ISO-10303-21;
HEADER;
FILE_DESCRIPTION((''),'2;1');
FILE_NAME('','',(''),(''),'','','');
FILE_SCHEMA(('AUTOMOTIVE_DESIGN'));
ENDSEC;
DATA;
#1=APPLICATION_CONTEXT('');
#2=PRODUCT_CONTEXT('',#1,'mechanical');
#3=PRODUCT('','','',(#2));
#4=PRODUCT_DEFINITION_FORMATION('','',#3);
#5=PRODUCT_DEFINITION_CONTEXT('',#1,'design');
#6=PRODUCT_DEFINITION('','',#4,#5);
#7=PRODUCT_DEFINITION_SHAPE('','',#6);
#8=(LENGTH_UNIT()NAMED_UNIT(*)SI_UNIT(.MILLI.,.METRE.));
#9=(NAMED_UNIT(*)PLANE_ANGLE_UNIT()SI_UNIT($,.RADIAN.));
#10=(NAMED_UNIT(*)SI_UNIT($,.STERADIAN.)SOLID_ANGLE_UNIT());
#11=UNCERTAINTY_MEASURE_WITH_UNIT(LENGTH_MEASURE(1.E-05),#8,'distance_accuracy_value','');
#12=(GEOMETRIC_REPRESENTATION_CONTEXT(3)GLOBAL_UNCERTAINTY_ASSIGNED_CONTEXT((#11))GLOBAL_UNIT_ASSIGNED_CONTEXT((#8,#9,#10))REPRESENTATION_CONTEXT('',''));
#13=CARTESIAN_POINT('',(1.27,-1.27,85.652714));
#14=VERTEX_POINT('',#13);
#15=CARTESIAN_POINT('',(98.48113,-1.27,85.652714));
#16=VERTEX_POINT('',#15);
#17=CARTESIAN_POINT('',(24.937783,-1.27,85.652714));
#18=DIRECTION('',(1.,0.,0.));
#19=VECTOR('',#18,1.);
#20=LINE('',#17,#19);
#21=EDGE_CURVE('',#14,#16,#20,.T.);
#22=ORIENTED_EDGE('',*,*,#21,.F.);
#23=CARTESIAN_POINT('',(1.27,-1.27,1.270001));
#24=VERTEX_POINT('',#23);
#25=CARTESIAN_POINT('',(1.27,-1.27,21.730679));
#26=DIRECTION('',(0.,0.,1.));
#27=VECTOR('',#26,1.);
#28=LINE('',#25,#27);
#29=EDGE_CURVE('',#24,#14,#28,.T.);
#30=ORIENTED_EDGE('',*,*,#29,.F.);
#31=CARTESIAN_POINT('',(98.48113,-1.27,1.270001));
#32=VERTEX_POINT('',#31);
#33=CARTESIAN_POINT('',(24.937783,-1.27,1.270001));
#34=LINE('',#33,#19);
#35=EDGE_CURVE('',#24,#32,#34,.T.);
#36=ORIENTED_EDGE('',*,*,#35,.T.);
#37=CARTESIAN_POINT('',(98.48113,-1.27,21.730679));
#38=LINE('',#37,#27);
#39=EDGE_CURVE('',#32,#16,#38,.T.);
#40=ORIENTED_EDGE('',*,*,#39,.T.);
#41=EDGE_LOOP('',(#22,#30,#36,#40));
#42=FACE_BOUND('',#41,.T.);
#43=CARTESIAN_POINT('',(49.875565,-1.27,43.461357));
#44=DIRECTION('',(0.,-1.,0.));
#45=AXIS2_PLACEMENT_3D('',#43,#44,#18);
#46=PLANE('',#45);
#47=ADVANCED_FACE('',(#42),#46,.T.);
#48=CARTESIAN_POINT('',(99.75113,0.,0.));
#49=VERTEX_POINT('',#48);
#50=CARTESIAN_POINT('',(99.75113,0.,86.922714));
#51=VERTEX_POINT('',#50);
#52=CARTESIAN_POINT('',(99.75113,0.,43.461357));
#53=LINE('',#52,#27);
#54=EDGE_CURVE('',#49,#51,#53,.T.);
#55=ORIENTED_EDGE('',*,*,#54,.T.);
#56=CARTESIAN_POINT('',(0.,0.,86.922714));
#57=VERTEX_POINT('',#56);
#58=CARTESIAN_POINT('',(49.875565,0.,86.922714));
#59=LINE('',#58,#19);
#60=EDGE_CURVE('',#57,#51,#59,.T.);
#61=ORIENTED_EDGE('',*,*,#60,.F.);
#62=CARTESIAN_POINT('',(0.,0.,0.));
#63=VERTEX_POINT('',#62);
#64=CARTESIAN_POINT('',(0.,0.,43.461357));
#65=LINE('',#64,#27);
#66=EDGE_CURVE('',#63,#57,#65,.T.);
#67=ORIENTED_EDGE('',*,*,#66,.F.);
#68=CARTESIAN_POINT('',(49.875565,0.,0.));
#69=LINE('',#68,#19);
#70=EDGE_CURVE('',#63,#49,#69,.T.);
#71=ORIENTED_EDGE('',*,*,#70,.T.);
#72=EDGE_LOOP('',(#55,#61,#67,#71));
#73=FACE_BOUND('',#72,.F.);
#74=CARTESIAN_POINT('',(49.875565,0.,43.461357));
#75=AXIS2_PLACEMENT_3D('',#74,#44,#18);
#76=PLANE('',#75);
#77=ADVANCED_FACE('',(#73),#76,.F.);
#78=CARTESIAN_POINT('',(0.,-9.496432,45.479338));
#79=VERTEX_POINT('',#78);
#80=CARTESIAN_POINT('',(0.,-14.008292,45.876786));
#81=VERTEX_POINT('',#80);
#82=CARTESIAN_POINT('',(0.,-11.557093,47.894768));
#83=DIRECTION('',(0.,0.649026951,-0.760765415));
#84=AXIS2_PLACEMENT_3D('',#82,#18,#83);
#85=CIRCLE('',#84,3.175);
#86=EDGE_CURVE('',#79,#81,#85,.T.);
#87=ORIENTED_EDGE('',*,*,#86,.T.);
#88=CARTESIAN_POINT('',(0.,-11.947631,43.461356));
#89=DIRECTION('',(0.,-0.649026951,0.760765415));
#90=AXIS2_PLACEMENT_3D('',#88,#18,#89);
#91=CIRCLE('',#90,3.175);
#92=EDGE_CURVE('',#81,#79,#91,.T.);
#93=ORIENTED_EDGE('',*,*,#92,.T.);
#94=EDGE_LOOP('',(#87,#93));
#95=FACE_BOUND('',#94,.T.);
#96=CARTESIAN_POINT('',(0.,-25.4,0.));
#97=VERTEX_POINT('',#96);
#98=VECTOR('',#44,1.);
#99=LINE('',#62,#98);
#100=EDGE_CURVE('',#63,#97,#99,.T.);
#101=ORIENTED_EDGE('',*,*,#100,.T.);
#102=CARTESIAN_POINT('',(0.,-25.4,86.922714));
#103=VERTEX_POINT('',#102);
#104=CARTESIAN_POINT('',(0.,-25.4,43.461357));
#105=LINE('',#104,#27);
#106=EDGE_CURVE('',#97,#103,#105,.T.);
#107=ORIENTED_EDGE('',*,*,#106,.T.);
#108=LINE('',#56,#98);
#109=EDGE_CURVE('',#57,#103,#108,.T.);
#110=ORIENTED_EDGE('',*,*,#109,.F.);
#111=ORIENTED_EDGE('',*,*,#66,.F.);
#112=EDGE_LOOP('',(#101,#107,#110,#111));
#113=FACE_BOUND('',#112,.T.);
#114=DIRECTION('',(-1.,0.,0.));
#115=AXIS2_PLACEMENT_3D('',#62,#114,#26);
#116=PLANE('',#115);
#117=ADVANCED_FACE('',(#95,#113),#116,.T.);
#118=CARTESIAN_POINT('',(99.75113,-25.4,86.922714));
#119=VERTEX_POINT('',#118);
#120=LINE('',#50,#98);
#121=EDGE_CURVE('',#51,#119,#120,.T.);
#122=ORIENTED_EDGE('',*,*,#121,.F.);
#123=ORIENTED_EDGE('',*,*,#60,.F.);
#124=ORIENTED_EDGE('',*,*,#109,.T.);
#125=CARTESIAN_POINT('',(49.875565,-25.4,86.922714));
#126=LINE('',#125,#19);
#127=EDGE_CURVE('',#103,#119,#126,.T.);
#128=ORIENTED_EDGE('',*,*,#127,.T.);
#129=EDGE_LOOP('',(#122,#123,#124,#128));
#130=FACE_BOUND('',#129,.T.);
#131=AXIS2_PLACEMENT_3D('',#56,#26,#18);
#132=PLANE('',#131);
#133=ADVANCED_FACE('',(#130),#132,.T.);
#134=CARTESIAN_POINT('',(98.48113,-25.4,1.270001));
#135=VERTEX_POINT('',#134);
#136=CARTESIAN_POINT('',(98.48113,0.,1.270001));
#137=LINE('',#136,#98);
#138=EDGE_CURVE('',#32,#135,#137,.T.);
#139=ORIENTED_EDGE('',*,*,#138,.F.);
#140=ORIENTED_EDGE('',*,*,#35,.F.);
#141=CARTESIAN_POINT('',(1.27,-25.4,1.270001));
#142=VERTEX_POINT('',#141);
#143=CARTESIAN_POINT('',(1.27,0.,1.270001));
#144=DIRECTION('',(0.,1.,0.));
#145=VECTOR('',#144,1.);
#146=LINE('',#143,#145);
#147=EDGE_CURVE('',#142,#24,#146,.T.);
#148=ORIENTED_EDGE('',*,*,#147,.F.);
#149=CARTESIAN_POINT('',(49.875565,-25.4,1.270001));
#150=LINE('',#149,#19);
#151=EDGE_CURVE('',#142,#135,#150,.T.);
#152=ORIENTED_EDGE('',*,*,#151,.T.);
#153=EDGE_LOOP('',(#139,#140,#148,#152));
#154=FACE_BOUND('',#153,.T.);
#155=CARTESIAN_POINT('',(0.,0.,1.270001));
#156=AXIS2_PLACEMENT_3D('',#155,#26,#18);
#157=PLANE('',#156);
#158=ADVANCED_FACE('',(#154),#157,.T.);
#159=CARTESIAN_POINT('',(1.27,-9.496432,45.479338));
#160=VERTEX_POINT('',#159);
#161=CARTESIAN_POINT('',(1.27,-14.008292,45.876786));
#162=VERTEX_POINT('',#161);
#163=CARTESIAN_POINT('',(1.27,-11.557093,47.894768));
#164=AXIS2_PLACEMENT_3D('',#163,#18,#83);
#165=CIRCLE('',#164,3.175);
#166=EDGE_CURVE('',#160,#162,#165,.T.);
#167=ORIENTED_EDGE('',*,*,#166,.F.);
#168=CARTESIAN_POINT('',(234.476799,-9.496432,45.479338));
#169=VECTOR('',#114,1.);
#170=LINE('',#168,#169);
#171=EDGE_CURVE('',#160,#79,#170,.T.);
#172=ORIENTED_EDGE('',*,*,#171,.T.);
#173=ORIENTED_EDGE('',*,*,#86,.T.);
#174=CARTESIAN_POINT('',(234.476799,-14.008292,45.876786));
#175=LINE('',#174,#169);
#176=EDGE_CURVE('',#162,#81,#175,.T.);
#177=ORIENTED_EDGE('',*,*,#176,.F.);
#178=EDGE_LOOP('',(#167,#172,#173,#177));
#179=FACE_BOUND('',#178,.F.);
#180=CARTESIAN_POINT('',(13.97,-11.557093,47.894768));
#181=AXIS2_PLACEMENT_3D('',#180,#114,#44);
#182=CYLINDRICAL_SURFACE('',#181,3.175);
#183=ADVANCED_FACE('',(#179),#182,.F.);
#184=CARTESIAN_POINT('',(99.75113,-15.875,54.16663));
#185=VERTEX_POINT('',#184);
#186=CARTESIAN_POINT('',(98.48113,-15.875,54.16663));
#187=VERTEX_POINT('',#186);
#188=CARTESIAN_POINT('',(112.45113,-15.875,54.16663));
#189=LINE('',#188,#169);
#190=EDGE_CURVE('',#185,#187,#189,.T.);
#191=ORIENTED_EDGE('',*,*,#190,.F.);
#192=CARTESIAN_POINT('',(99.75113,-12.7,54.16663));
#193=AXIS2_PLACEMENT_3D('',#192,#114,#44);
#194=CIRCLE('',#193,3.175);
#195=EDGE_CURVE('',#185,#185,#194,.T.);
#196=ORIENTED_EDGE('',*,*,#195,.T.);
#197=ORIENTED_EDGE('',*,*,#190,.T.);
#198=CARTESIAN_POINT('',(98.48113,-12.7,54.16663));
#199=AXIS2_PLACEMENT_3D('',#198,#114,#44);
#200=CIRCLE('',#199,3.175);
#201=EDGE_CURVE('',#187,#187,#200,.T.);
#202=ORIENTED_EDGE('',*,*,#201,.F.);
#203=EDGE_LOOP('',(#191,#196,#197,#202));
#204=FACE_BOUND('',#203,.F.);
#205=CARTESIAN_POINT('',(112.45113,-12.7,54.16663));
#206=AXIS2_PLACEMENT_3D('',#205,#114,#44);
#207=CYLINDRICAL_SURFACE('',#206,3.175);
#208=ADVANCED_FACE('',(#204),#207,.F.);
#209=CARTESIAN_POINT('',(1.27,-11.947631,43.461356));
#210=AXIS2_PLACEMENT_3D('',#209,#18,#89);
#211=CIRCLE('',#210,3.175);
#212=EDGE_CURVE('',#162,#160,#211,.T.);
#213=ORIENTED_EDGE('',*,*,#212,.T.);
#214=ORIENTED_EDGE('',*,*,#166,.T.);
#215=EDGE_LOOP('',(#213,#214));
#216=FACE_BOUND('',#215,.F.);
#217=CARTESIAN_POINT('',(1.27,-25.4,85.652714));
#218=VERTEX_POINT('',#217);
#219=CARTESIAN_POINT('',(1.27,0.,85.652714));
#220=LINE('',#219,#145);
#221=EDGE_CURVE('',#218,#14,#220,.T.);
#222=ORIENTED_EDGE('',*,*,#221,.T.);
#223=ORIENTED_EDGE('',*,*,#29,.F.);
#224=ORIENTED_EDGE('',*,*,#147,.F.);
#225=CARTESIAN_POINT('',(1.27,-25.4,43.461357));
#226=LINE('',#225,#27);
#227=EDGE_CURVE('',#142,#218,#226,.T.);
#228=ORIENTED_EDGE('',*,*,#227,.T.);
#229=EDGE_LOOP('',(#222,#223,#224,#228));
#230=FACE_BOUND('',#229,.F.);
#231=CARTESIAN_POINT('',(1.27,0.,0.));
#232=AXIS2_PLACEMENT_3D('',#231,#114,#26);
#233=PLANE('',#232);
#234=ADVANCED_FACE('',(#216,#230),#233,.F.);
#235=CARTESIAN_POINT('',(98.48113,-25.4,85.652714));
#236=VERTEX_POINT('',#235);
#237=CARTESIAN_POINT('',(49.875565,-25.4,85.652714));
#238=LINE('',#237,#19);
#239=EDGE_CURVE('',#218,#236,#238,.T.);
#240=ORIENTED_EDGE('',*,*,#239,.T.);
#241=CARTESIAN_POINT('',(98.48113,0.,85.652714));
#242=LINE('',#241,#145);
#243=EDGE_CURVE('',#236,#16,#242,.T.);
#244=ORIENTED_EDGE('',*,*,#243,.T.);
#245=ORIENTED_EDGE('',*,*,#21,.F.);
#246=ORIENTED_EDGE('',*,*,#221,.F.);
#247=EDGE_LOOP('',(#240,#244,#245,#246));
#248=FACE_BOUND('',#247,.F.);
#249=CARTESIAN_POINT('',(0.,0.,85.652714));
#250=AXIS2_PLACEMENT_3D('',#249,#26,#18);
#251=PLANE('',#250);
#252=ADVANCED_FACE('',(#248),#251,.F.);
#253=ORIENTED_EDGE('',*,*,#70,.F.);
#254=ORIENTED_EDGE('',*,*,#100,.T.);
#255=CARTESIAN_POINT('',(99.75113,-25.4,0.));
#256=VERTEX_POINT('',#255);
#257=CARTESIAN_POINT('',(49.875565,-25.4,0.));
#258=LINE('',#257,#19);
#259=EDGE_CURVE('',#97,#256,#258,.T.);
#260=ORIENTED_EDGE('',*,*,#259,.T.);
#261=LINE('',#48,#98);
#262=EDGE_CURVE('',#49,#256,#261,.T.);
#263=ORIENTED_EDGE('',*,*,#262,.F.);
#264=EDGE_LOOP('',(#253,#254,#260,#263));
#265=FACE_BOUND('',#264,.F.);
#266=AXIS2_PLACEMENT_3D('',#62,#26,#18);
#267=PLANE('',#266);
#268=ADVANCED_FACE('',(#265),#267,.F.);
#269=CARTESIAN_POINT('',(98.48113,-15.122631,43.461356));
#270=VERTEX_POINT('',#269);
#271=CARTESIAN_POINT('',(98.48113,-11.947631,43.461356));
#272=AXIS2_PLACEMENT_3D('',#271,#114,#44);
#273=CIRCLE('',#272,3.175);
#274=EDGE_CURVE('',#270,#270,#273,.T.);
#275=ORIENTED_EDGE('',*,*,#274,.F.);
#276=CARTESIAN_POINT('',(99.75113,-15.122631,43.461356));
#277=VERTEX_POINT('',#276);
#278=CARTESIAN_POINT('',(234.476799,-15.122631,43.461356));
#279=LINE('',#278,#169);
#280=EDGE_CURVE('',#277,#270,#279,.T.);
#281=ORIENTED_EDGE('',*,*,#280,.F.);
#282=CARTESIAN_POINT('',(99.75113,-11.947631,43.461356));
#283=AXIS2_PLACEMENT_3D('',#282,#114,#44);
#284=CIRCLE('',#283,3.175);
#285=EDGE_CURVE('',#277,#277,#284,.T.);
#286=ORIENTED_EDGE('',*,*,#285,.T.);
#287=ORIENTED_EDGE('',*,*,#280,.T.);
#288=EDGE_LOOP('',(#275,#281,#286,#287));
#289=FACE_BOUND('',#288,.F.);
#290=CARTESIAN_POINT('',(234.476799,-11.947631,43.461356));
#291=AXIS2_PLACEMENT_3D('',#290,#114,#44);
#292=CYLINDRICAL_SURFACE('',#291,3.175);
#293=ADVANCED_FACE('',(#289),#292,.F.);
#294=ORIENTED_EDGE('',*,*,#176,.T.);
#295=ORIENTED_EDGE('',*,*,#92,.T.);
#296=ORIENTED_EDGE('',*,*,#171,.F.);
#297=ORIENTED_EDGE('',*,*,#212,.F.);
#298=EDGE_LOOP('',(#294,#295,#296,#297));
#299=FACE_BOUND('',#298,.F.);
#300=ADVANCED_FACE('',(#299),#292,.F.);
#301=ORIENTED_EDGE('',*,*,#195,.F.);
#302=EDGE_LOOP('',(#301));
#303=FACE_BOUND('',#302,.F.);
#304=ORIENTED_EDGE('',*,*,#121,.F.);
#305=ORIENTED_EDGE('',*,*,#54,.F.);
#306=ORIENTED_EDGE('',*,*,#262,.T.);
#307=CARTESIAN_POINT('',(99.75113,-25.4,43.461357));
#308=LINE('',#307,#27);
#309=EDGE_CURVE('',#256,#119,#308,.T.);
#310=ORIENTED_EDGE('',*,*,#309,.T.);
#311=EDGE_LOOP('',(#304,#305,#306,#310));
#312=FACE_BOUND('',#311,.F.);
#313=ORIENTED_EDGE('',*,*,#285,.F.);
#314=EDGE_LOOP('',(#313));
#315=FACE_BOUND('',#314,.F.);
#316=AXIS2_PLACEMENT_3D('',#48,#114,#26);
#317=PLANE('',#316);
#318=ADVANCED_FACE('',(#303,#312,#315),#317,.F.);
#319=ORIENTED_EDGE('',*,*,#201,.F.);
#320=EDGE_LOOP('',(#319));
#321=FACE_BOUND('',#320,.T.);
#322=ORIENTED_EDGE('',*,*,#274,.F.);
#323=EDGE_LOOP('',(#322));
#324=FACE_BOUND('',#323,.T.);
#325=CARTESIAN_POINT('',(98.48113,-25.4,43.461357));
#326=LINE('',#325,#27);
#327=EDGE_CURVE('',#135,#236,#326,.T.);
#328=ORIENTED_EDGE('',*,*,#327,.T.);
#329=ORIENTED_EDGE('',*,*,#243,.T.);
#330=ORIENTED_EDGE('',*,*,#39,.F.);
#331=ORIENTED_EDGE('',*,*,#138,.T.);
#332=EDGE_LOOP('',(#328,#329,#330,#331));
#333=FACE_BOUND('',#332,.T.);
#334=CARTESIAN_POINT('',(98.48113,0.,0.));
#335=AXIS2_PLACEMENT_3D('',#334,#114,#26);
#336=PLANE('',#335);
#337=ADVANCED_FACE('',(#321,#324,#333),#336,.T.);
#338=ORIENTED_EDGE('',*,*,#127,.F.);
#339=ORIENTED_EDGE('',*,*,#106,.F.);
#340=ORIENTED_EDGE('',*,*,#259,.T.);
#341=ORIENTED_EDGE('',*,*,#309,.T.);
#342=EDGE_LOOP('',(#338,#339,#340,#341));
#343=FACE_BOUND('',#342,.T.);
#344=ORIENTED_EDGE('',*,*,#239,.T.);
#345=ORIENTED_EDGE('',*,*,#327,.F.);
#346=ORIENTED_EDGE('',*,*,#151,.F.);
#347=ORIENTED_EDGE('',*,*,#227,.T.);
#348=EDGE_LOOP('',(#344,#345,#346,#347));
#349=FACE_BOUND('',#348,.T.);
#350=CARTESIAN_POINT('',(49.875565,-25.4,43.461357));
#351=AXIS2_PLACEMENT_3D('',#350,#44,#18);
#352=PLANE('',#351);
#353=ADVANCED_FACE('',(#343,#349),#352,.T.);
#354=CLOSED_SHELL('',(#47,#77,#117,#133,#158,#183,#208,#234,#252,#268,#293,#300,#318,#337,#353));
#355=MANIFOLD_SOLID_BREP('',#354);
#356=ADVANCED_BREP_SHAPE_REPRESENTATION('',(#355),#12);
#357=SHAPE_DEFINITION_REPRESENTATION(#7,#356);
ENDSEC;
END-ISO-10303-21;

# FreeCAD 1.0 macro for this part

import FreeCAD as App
import Part
import Sketcher
from FreeCAD import Vector
Q = App.Units.Quantity


def faces_at(feature, points):
    """Names of the faces that lie closest to the given points."""
    faces = feature.Shape.Faces
    near = lambda p: min(range(len(faces)), key=lambda i: faces[i].distToShape(Part.Vertex(*p))[0])
    return sorted({f"Face{near(p) + 1}" for p in points})


def add_polygon(sketch, points):
    """Adds a closed chain of lines whose ends are joined by coincident constraints."""
    first, n = sketch.GeometryCount, len(points)
    for a, b in zip(points, points[1:] + points[:1]):
        sketch.addGeometry(Part.LineSegment(App.Vector(*a, 0), App.Vector(*b, 0)), False)
    for i in range(n):
        sketch.addConstraint(Sketcher.Constraint("Coincident", first + i, 2, first + (i + 1) % n, 1))

doc = App.newDocument("Part")
body = doc.addObject("PartDesign::Body", "Body")

sketch1 = body.newObject("Sketcher::SketchObject", "Sketch")
sketch1.AttachmentSupport = (doc.getObject("XZ_Plane"), [""])
sketch1.MapMode = "FlatFace"
add_polygon(sketch1, [(0, 87), (0, 0), (100, 0), (100, 87)])
sketch1.addConstraint([
    Sketcher.Constraint("Vertical", 0),
    Sketcher.Constraint("Horizontal", 1),
    Sketcher.Constraint("Vertical", 2),
    Sketcher.Constraint("Horizontal", 3),
    Sketcher.Constraint("Coincident", 0, 2, -1, 1),
    Sketcher.Constraint("DistanceX", 1, 1, 1, 2, Q("99.75113 mm")),
    Sketcher.Constraint("DistanceY", 0, 2, 0, 1, Q("86.922713 mm")),
])
pad1 = body.newObject("PartDesign::Pad", "Pad")
pad1.Profile = sketch1
pad1.Length = Q("1 in")
doc.recompute()

thickness = body.newObject("PartDesign::Thickness", "Thickness")
thickness.Base = (pad1, faces_at(pad1, [(49.876, -25.4, 43.461)]))
thickness.Value = Q("0.05 in")
thickness.Reversed = True
thickness.Join = "Arc"

sketch2 = body.newObject("Sketcher::SketchObject", "Sketch001")
sketch2.AttachmentSupport = (doc.getObject("YZ_Plane"), [""])
sketch2.MapMode = "FlatFace"
sketch2.AttachmentOffset = App.Placement(Vector(0, 0, 99.75113), App.Rotation())
sketch2.addGeometry(Part.Circle(Vector(-11.9, 43.5, 0), Vector(0, 0, 1), 3.2), False)
sketch2.addConstraint([
    Sketcher.Constraint("Diameter", 0, Q("0.25 in")),
    Sketcher.Constraint("DistanceX", 0, 3, -1, 1, Q("11.947631 mm")),
    Sketcher.Constraint("DistanceY", -1, 1, 0, 3, Q("43.461356 mm")),
])
doc.recompute()
hole = body.newObject("PartDesign::Hole", "Hole")
hole.Profile = sketch2
hole.ThreadType = "None"
hole.Diameter = Q("0.25 in")
hole.DepthType = "ThroughAll"

sketch3 = body.newObject("Sketcher::SketchObject", "Sketch002")
sketch3.AttachmentSupport = (doc.getObject("YZ_Plane"), [""])
sketch3.MapMode = "FlatFace"
sketch3.AttachmentOffset = App.Placement(Vector(0, 0, 0.05 * 25.4), App.Rotation())
sketch3.addGeometry(Part.Circle(Vector(-11.6, 47.9, 0), Vector(0, 0, 1), 3.2), False)
sketch3.addConstraint([
    Sketcher.Constraint("Diameter", 0, Q("0.25 in")),
    Sketcher.Constraint("DistanceX", 0, 3, -1, 1, Q("11.557093 mm")),
    Sketcher.Constraint("DistanceY", -1, 1, 0, 3, Q("47.894768 mm")),
])
doc.recompute()
hole2 = body.newObject("PartDesign::Hole", "Hole001")
hole2.Profile = sketch3
hole2.ThreadType = "None"
hole2.Diameter = Q("0.25 in")
hole2.DepthType = "Dimension"
hole2.Depth = Q("0.5 in")
hole2.DrillPoint = "Flat"

sketch4 = body.newObject("Sketcher::SketchObject", "Sketch003")
sketch4.AttachmentSupport = (doc.getObject("YZ_Plane"), [""])
sketch4.MapMode = "FlatFace"
sketch4.AttachmentOffset = App.Placement(Vector(0, 0, 99.75113), App.Rotation())
sketch4.addGeometry(Part.Circle(Vector(-12.7, 54.2, 0), Vector(0, 0, 1), 3.2), False)
sketch4.addConstraint([
    Sketcher.Constraint("Diameter", 0, Q("0.25 in")),
    Sketcher.Constraint("DistanceX", 0, 3, -1, 1, Q("0.5 in")),
    Sketcher.Constraint("DistanceY", -1, 1, 0, 3, Q("54.16663 mm")),
])
doc.recompute()
hole3 = body.newObject("PartDesign::Hole", "Hole002")
hole3.Profile = sketch4
hole3.ThreadType = "None"
hole3.Diameter = Q("0.25 in")
hole3.DepthType = "Dimension"
hole3.Depth = Q("0.5 in")
hole3.DrillPoint = "Flat"

doc.recompute()
